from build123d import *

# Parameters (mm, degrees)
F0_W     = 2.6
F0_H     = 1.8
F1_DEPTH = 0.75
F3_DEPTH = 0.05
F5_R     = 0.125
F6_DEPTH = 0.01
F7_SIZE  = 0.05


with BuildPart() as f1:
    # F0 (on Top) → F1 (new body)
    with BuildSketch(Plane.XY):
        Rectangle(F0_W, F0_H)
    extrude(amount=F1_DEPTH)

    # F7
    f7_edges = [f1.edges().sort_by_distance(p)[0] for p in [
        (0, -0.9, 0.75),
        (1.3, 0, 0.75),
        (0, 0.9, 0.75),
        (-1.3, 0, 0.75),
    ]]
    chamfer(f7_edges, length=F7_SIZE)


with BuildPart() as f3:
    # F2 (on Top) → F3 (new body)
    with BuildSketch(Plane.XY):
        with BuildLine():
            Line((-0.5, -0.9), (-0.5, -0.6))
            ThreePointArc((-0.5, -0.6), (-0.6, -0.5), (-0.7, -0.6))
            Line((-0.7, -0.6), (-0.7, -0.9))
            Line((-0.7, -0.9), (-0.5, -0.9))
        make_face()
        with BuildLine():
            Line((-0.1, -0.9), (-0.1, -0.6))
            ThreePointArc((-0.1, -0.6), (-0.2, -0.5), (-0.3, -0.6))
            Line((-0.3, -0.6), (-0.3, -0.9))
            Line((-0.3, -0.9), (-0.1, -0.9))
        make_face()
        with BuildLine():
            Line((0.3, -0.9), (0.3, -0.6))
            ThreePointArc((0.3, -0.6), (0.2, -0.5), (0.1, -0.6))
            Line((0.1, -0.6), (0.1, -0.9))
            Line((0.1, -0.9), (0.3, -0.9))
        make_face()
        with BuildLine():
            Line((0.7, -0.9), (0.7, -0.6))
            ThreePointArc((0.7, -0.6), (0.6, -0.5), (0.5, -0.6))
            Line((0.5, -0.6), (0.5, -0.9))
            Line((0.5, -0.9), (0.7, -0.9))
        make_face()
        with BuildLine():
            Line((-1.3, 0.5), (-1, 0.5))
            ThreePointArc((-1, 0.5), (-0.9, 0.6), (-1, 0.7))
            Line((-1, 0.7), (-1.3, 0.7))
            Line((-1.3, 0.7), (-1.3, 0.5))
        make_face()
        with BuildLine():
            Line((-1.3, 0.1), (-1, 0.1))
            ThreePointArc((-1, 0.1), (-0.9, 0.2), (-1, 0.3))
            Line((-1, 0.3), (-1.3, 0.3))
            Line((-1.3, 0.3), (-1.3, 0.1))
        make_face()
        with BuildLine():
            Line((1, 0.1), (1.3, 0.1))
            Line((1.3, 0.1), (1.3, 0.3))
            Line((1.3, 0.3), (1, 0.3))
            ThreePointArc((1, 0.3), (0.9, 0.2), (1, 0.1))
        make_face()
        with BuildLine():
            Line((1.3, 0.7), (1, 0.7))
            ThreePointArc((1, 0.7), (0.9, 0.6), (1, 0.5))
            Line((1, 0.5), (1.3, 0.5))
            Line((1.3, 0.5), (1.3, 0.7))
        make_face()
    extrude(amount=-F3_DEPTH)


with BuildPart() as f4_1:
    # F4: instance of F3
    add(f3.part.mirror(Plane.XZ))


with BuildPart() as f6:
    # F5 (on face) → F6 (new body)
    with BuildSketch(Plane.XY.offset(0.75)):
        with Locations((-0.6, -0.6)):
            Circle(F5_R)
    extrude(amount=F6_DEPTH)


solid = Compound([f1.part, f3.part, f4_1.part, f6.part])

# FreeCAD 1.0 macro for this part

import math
import FreeCAD as App
import Part
import Sketcher


def edges_at(feature, points):
    """Names of the edges that pass closest to the given points."""
    edges = feature.Shape.Edges
    near = lambda p: min(range(len(edges)), key=lambda i: edges[i].distToShape(Part.Vertex(*p))[0])
    return sorted({f"Edge{near(p) + 1}" for p in points})


def add_polygon(sketch, points):
    """Adds a closed chain of lines whose ends are joined by coincident constraints."""
    first, n = sketch.GeometryCount, len(points)
    for a, b in zip(points, points[1:] + points[:1]):
        sketch.addGeometry(Part.LineSegment(App.Vector(*a, 0), App.Vector(*b, 0)), False)
    for i in range(n):
        sketch.addConstraint(Sketcher.Constraint("Coincident", first + i, 2, first + (i + 1) % n, 1))

doc = App.newDocument("Part")
params = doc.addObject("Spreadsheet::Sheet", "Params")
for row, (alias, value) in enumerate([
    ("sketch1_width", "2.6 mm"),
    ("sketch1_height", "1.8 mm"),
    ("pad1_length", "0.75 mm"),
    ("chamfer_size", "0.05 mm"),
    ("sketch2_radius", "0.1 mm"),
    ("sketch2_width", "0.3 mm"),
    ("pad2_length", "0.05 mm"),
    ("sketch3_diameter", "0.25 mm"),
    ("pad3_length", "0.01 mm"),
], start=1):
    params.set(f"A{row}", alias)
    params.set(f"B{row}", "=" + value)
    params.setAlias(f"B{row}", alias)

body = doc.addObject("PartDesign::Body", "Body")

# Sketch on XY plane
sketch1 = doc.addObject("Sketcher::SketchObject", "Sketch")
body.addObject(sketch1)
sketch1.AttachmentSupport = (doc.XY_Plane, [""])
sketch1.MapMode = "FlatFace"
add_polygon(sketch1, [(-1.3, 0.9), (-1.3, -0.9), (1.3, -0.9), (1.3, 0.9)])  # lines 0-3
sketch1.addConstraint([
    Sketcher.Constraint("Vertical", 0),
    Sketcher.Constraint("Horizontal", 1),
    Sketcher.Constraint("Vertical", 2),
    Sketcher.Constraint("Horizontal", 3),
    Sketcher.Constraint("Symmetric", 0, 2, 2, 2, -1, 1),
    Sketcher.Constraint("DistanceX", 1, 1, 1, 2, 2.6),
    Sketcher.Constraint("DistanceY", 0, 2, 0, 1, 1.8),
])
sketch1.setExpression("Constraints[9]", "Params.sketch1_width")
sketch1.setExpression("Constraints[10]", "Params.sketch1_height")
pad1 = doc.addObject("PartDesign::Pad", "Pad")
body.addObject(pad1)
pad1.Profile = sketch1
pad1.setExpression("Length", "Params.pad1_length")
doc.recompute()

chamfer = doc.addObject("PartDesign::Chamfer", "Chamfer")
body.addObject(chamfer)
chamfer.Base = (pad1, edges_at(pad1, [
    (0, -0.9, 0.75),
    (1.3, 0, 0.75),
    (0, 0.9, 0.75),
    (-1.3, 0, 0.75),
]))
chamfer.setExpression("Size", "Params.chamfer_size")
body2 = doc.addObject("PartDesign::Body", "Body001")
body2.AllowCompound = True

# Sketch on XY plane
sketch2 = doc.addObject("Sketcher::SketchObject", "Sketch001")
body2.addObject(sketch2)
sketch2.AttachmentSupport = (doc.getObject("XY_Plane001"), [""])
sketch2.MapMode = "FlatFace"
sketch2.addGeometry([
    Part.LineSegment(App.Vector(-0.5, -0.9, 0), App.Vector(-0.5, -0.6, 0)),  # 0
    Part.ArcOfCircle(Part.Circle(App.Vector(-0.6, -0.6, 0), App.Vector(0, 0, 1), 0.1), math.radians(0), math.radians(180)),  # 1
    Part.LineSegment(App.Vector(-0.7, -0.6, 0), App.Vector(-0.7, -0.9, 0)),  # 2
    Part.LineSegment(App.Vector(-0.7, -0.9, 0), App.Vector(-0.5, -0.9, 0)),  # 3
    Part.LineSegment(App.Vector(-0.1, -0.9, 0), App.Vector(-0.1, -0.6, 0)),  # 4
    Part.ArcOfCircle(Part.Circle(App.Vector(-0.2, -0.6, 0), App.Vector(0, 0, 1), 0.1), math.radians(0), math.radians(180)),  # 5
    Part.LineSegment(App.Vector(-0.3, -0.6, 0), App.Vector(-0.3, -0.9, 0)),  # 6
    Part.LineSegment(App.Vector(-0.3, -0.9, 0), App.Vector(-0.1, -0.9, 0)),  # 7
    Part.LineSegment(App.Vector(0.3, -0.9, 0), App.Vector(0.3, -0.6, 0)),  # 8
    Part.ArcOfCircle(Part.Circle(App.Vector(0.2, -0.6, 0), App.Vector(0, 0, 1), 0.1), math.radians(0), math.radians(180)),  # 9
    Part.LineSegment(App.Vector(0.1, -0.6, 0), App.Vector(0.1, -0.9, 0)),  # 10
    Part.LineSegment(App.Vector(0.1, -0.9, 0), App.Vector(0.3, -0.9, 0)),  # 11
    Part.LineSegment(App.Vector(0.7, -0.9, 0), App.Vector(0.7, -0.6, 0)),  # 12
    Part.ArcOfCircle(Part.Circle(App.Vector(0.6, -0.6, 0), App.Vector(0, 0, 1), 0.1), math.radians(0), math.radians(180)),  # 13
    Part.LineSegment(App.Vector(0.5, -0.6, 0), App.Vector(0.5, -0.9, 0)),  # 14
    Part.LineSegment(App.Vector(0.5, -0.9, 0), App.Vector(0.7, -0.9, 0)),  # 15
    Part.LineSegment(App.Vector(-1.3, 0.5, 0), App.Vector(-1, 0.5, 0)),  # 16
    Part.ArcOfCircle(Part.Circle(App.Vector(-1, 0.6, 0), App.Vector(0, 0, 1), 0.1), math.radians(-90), math.radians(90)),  # 17
    Part.LineSegment(App.Vector(-1, 0.7, 0), App.Vector(-1.3, 0.7, 0)),  # 18
    Part.LineSegment(App.Vector(-1.3, 0.7, 0), App.Vector(-1.3, 0.5, 0)),  # 19
    Part.LineSegment(App.Vector(-1.3, 0.1, 0), App.Vector(-1, 0.1, 0)),  # 20
    Part.ArcOfCircle(Part.Circle(App.Vector(-1, 0.2, 0), App.Vector(0, 0, 1), 0.1), math.radians(-90), math.radians(90)),  # 21
    Part.LineSegment(App.Vector(-1, 0.3, 0), App.Vector(-1.3, 0.3, 0)),  # 22
    Part.LineSegment(App.Vector(-1.3, 0.3, 0), App.Vector(-1.3, 0.1, 0)),  # 23
    Part.LineSegment(App.Vector(1, 0.1, 0), App.Vector(1.3, 0.1, 0)),  # 24
    Part.LineSegment(App.Vector(1.3, 0.1, 0), App.Vector(1.3, 0.3, 0)),  # 25
    Part.LineSegment(App.Vector(1.3, 0.3, 0), App.Vector(1, 0.3, 0)),  # 26
    Part.ArcOfCircle(Part.Circle(App.Vector(1, 0.2, 0), App.Vector(0, 0, 1), 0.1), math.radians(90), math.radians(270)),  # 27
    Part.LineSegment(App.Vector(1.3, 0.7, 0), App.Vector(1, 0.7, 0)),  # 28
    Part.ArcOfCircle(Part.Circle(App.Vector(1, 0.6, 0), App.Vector(0, 0, 1), 0.1), math.radians(90), math.radians(270)),  # 29
    Part.LineSegment(App.Vector(1, 0.5, 0), App.Vector(1.3, 0.5, 0)),  # 30
    Part.LineSegment(App.Vector(1.3, 0.5, 0), App.Vector(1.3, 0.7, 0)),  # 31
], False)
sketch2.addConstraint([
    Sketcher.Constraint("Tangent", 0, 2, 1, 1),
    Sketcher.Constraint("Tangent", 1, 2, 2, 1),
    Sketcher.Constraint("Coincident", 2, 2, 3, 1),
    Sketcher.Constraint("Coincident", 3, 2, 0, 1),
    Sketcher.Constraint("Tangent", 4, 2, 5, 1),
    Sketcher.Constraint("Tangent", 5, 2, 6, 1),
    Sketcher.Constraint("Coincident", 6, 2, 7, 1),
    Sketcher.Constraint("Coincident", 7, 2, 4, 1),
    Sketcher.Constraint("Tangent", 8, 2, 9, 1),
    Sketcher.Constraint("Tangent", 9, 2, 10, 1),
    Sketcher.Constraint("Coincident", 10, 2, 11, 1),
    Sketcher.Constraint("Coincident", 11, 2, 8, 1),
    Sketcher.Constraint("Tangent", 12, 2, 13, 1),
    Sketcher.Constraint("Tangent", 13, 2, 14, 1),
    Sketcher.Constraint("Coincident", 14, 2, 15, 1),
    Sketcher.Constraint("Coincident", 15, 2, 12, 1),
    Sketcher.Constraint("Tangent", 16, 2, 17, 1),
    Sketcher.Constraint("Tangent", 17, 2, 18, 1),
    Sketcher.Constraint("Coincident", 18, 2, 19, 1),
    Sketcher.Constraint("Coincident", 19, 2, 16, 1),
    Sketcher.Constraint("Tangent", 20, 2, 21, 1),
    Sketcher.Constraint("Tangent", 21, 2, 22, 1),
    Sketcher.Constraint("Coincident", 22, 2, 23, 1),
    Sketcher.Constraint("Coincident", 23, 2, 20, 1),
    Sketcher.Constraint("Coincident", 24, 2, 25, 1),
    Sketcher.Constraint("Coincident", 25, 2, 26, 1),
    Sketcher.Constraint("Tangent", 26, 2, 27, 1),
    Sketcher.Constraint("Tangent", 27, 2, 24, 1),
    Sketcher.Constraint("Tangent", 28, 2, 29, 1),
    Sketcher.Constraint("Tangent", 29, 2, 30, 1),
    Sketcher.Constraint("Coincident", 30, 2, 31, 1),
    Sketcher.Constraint("Coincident", 31, 2, 28, 1),
    Sketcher.Constraint("Vertical", 0),
    Sketcher.Constraint("Vertical", 2),
    Sketcher.Constraint("Horizontal", 3),
    Sketcher.Constraint("Vertical", 4),
    Sketcher.Constraint("Vertical", 6),
    Sketcher.Constraint("Horizontal", 7),
    Sketcher.Constraint("Vertical", 8),
    Sketcher.Constraint("Vertical", 10),
    Sketcher.Constraint("Horizontal", 11),
    Sketcher.Constraint("Vertical", 12),
    Sketcher.Constraint("Vertical", 14),
    Sketcher.Constraint("Horizontal", 15),
    Sketcher.Constraint("Horizontal", 16),
    Sketcher.Constraint("Horizontal", 18),
    Sketcher.Constraint("Vertical", 19),
    Sketcher.Constraint("Horizontal", 20),
    Sketcher.Constraint("Horizontal", 22),
    Sketcher.Constraint("Vertical", 23),
    Sketcher.Constraint("Horizontal", 24),
    Sketcher.Constraint("Vertical", 25),
    Sketcher.Constraint("Horizontal", 26),
    Sketcher.Constraint("Horizontal", 28),
    Sketcher.Constraint("Horizontal", 30),
    Sketcher.Constraint("Vertical", 31),
    Sketcher.Constraint("Equal", 1, 5),
    Sketcher.Constraint("Equal", 5, 9),
    Sketcher.Constraint("Equal", 9, 13),
    Sketcher.Constraint("Equal", 13, 17),
    Sketcher.Constraint("Equal", 17, 21),
    Sketcher.Constraint("Equal", 21, 27),
    Sketcher.Constraint("Equal", 27, 29),
    Sketcher.Constraint("Symmetric", 5, 3, 9, 3, -2),
    Sketcher.Constraint("Symmetric", 1, 3, 13, 3, -2),
    Sketcher.Constraint("Symmetric", 21, 3, 27, 3, -2),
    Sketcher.Constraint("Symmetric", 17, 3, 29, 3, -2),
    Sketcher.Constraint("Horizontal", 1, 3, 5, 3),
    Sketcher.Constraint("Horizontal", 3, 2, 6, 2),
    Sketcher.Constraint("Horizontal", 7, 2, 10, 2),
    Sketcher.Constraint("Horizontal", 11, 2, 14, 2),
    Sketcher.Constraint("Vertical", 17, 3, 21, 3),
    Sketcher.Constraint("Vertical", 19, 2, 22, 2),
    Sketcher.Constraint("Vertical", 25, 2, 30, 2),
    Sketcher.Constraint("Equal", 22, 24),
    Sketcher.Constraint("Equal", 30, 0),
    Sketcher.Constraint("Radius", 1, 0.1),
    Sketcher.Constraint("DistanceX", 16, 1, 16, 2, 0.3),
    Sketcher.Constraint("DistanceX", 17, 3, -1, 1, 1.0),
    Sketcher.Constraint("DistanceX", 1, 3, -1, 1, 0.6),
    Sketcher.Constraint("DistanceY", 1, 3, -1, 1, 0.6),
    Sketcher.Constraint("DistanceX", 5, 3, -1, 1, 0.2),
    Sketcher.Constraint("DistanceY", -1, 1, 17, 3, 0.6),
    Sketcher.Constraint("DistanceY", -1, 1, 21, 3, 0.2),
])
sketch2.setExpression("Constraints[76]", "Params.sketch2_radius")
sketch2.setExpression("Constraints[77]", "Params.sketch2_width")
pad2 = doc.addObject("PartDesign::Pad", "Pad001")
body2.addObject(pad2)
pad2.Profile = sketch2
pad2.setExpression("Length", "Params.pad2_length")
pad2.Reversed = True
body3 = doc.addObject("PartDesign::Body", "Body002")
body3.AllowCompound = True
doc.recompute()

mirroring = doc.addObject("Part::Mirroring", "Mirroring")
mirroring.Source = body2
mirroring.Base = App.Vector(0, 0, 0)
mirroring.Normal = App.Vector(0, -1, 0)
body3.BaseFeature = mirroring
doc.recompute()
body4 = doc.addObject("PartDesign::Body", "Body003")

# Sketch on XY plane
sketch3 = doc.addObject("Sketcher::SketchObject", "Sketch002")
body4.addObject(sketch3)
sketch3.AttachmentSupport = (doc.getObject("XY_Plane003"), [""])
sketch3.MapMode = "FlatFace"
sketch3.AttachmentOffset = App.Placement(App.Vector(0, 0, 0.75), App.Rotation())
sketch3.addGeometry(Part.Circle(App.Vector(-0.6, -0.6, 0), App.Vector(0, 0, 1), 0.125), False)
sketch3.addConstraint([
    Sketcher.Constraint("Diameter", 0, 0.25),
    Sketcher.Constraint("DistanceX", 0, 3, -1, 1, 0.6),
    Sketcher.Constraint("DistanceY", 0, 3, -1, 1, 0.6),
])
sketch3.setExpression("Constraints[0]", "Params.sketch3_diameter")
pad3 = doc.addObject("PartDesign::Pad", "Pad002")
body4.addObject(pad3)
pad3.Profile = sketch3
pad3.setExpression("Length", "Params.pad3_length")
mirroring.Visibility = False

doc.recompute()
